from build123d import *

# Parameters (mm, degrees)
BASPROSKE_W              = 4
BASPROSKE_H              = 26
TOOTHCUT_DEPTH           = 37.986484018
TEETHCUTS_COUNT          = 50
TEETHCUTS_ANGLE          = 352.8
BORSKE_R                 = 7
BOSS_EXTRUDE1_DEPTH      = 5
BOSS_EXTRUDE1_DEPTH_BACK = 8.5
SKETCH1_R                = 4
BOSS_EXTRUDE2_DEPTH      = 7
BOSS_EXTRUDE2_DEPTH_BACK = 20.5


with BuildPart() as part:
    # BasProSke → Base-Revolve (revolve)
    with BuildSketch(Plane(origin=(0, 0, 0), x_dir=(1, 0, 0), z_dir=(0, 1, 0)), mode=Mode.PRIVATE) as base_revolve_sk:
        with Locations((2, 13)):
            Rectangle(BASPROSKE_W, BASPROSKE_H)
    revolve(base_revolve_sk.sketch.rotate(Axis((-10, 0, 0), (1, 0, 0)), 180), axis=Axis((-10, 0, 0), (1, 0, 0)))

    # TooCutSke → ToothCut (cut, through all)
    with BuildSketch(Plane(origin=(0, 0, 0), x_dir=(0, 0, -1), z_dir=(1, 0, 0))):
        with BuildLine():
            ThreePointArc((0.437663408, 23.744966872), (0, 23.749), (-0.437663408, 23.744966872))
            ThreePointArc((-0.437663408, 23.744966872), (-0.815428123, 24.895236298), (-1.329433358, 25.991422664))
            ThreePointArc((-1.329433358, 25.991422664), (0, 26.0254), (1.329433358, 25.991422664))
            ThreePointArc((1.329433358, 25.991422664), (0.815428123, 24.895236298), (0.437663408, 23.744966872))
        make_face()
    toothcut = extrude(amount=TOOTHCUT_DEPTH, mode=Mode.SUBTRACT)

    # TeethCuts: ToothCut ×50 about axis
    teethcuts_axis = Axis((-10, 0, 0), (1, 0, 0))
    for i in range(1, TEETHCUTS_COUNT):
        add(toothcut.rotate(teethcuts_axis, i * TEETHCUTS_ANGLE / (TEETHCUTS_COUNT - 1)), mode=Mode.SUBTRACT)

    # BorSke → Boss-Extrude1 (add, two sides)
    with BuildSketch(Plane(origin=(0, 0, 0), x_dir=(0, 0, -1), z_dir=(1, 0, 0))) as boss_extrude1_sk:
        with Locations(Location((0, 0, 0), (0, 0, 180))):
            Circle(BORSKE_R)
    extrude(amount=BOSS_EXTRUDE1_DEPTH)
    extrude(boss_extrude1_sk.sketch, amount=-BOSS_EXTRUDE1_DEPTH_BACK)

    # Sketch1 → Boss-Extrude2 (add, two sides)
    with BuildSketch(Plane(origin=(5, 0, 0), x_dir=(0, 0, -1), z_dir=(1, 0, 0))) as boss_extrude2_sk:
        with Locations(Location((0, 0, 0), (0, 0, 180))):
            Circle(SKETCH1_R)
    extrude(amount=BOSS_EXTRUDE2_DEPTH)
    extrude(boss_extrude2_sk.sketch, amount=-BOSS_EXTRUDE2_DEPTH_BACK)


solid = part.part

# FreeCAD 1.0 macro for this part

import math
import FreeCAD as App
import Part
import Sketcher

V = App.Vector
Q = App.Units.Quantity


def add_polygon(sketch, points):
    """Adds a closed chain of lines whose ends are joined by coincident constraints."""
    first, n = sketch.GeometryCount, len(points)
    for a, b in zip(points, points[1:] + points[:1]):
        sketch.addGeometry(Part.LineSegment(App.Vector(*a, 0), App.Vector(*b, 0)), False)
    for i in range(n):
        sketch.addConstraint(Sketcher.Constraint("Coincident", first + i, 2, first + (i + 1) % n, 1))

doc = App.newDocument("Part")
body = doc.addObject("PartDesign::Body", "Body")

# Sketch on XZ plane
sketch1 = body.newObject("Sketcher::SketchObject", "Sketch")
sketch1.AttachmentSupport = (doc.getObject("XZ_Plane"), [""])
sketch1.MapMode = "FlatFace"
add_polygon(sketch1, [(0, -26), (0, 0), (4, 0), (4, -26)])  # lines 0-3
sketch1.addConstraint(Sketcher.Constraint("Vertical", 0))
sketch1.addConstraint(Sketcher.Constraint("Horizontal", 1))
sketch1.addConstraint(Sketcher.Constraint("Vertical", 2))
sketch1.addConstraint(Sketcher.Constraint("Horizontal", 3))
sketch1.addConstraint(Sketcher.Constraint("Coincident", 0, 2, -1, 1))
sketch1.addConstraint(Sketcher.Constraint("DistanceX", 1, 1, 1, 2, Q("4 mm")))
sketch1.addConstraint(Sketcher.Constraint("DistanceY", 0, 1, 0, 2, Q("26 mm")))
revolution = body.newObject("PartDesign::Revolution", "Revolution")
revolution.Profile = sketch1
revolution.ReferenceAxis = (sketch1, ["H_Axis"])
revolution.Angle = 360

# Sketch on YZ plane
sketch2 = body.newObject("Sketcher::SketchObject", "Sketch001")
sketch2.AttachmentSupport = (doc.getObject("YZ_Plane"), [""])
sketch2.MapMode = "FlatFace"
sketch2.addGeometry(Part.ArcOfCircle(Part.Circle(V(-0.000001, 0, 0), V(0, 0, 1), 23.749001), math.radians(-1.055947), math.radians(1.055947)), False)
sketch2.addGeometry(Part.ArcOfCircle(Part.Circle(V(21.20564, -10.109882, 0), V(0, 0, 1), 10), math.radians(61.407413), math.radians(75.289649)), False)
sketch2.addGeometry(Part.ArcOfCircle(Part.Circle(V(0, 0, 0), V(0, 0, 1), 26.0254), math.radians(-2.928066), math.radians(2.928066)), False)
sketch2.addGeometry(Part.ArcOfCircle(Part.Circle(V(21.20564, 10.109882, 0), V(0, 0, 1), 10), math.radians(-75.289649), math.radians(-61.407413)), False)
sketch2.addConstraint(Sketcher.Constraint("Coincident", 0, 1, 1, 2))
sketch2.addConstraint(Sketcher.Constraint("Coincident", 1, 1, 2, 1))
sketch2.addConstraint(Sketcher.Constraint("Coincident", 2, 2, 3, 2))
sketch2.addConstraint(Sketcher.Constraint("Coincident", 3, 1, 0, 2))
sketch2.addConstraint(Sketcher.Constraint("Coincident", 0, 3, -1, 1))
sketch2.addConstraint(Sketcher.Constraint("Coincident", 2, 3, -1, 1))
sketch2.addConstraint(Sketcher.Constraint("Equal", 1, 3))
sketch2.addConstraint(Sketcher.Constraint("Symmetric", 1, 3, 3, 3, -1))
sketch2.addConstraint(Sketcher.Constraint("Radius", 1, Q("10 mm")))
sketch2.addConstraint(Sketcher.Constraint("Radius", 0, Q("23.749001 mm")))
sketch2.addConstraint(Sketcher.Constraint("Radius", 2, Q("26.0254 mm")))
sketch2.addConstraint(Sketcher.Constraint("DistanceX", -1, 1, 1, 3, Q("21.20564 mm")))
sketch2.addConstraint(Sketcher.Constraint("DistanceX", 0, 3, 0, 1, Q("23.744968 mm")))
pocket1 = body.newObject("PartDesign::Pocket", "Pocket")
pocket1.Profile = sketch2
pocket1.Type = "ThroughAll"
pocket1.Reversed = True
doc.recompute()

polarpattern = body.newObject("PartDesign::PolarPattern", "PolarPattern")
polarpattern.Originals = [pocket1]
polarpattern.Axis = (doc.getObject("X_Axis"), [""])
polarpattern.Angle = 360
polarpattern.Occurrences = 50
body.Tip = polarpattern

# Sketch on YZ plane
sketch3 = body.newObject("Sketcher::SketchObject", "Sketch002")
sketch3.AttachmentSupport = (doc.getObject("YZ_Plane"), [""])
sketch3.MapMode = "FlatFace"
sketch3.addGeometry(Part.Circle(V(0, 0, 0), V(0, 0, 1), 7), False)
sketch3.addConstraint(Sketcher.Constraint("Coincident", 0, 3, -1, 1))
sketch3.addConstraint(Sketcher.Constraint("Diameter", 0, Q("14 mm")))
pad1 = body.newObject("PartDesign::Pad", "Pad")
pad1.Profile = sketch3
pad1.Type = "TwoLengths"
pad1.Length = 5
pad1.Length2 = 8.5

# Sketch on YZ plane
sketch4 = body.newObject("Sketcher::SketchObject", "Sketch003")
sketch4.AttachmentSupport = (doc.getObject("YZ_Plane"), [""])
sketch4.MapMode = "FlatFace"
sketch4.AttachmentOffset = App.Placement(V(0, 0, 5), App.Rotation())
sketch4.addGeometry(Part.Circle(V(0, 0, 0), V(0, 0, 1), 4), False)
sketch4.addConstraint(Sketcher.Constraint("Coincident", 0, 3, -1, 1))
sketch4.addConstraint(Sketcher.Constraint("Diameter", 0, Q("8 mm")))
pad2 = body.newObject("PartDesign::Pad", "Pad001")
pad2.Profile = sketch4
pad2.Type = "TwoLengths"
pad2.Length = 7
pad2.Length2 = 20.5

doc.recompute()
